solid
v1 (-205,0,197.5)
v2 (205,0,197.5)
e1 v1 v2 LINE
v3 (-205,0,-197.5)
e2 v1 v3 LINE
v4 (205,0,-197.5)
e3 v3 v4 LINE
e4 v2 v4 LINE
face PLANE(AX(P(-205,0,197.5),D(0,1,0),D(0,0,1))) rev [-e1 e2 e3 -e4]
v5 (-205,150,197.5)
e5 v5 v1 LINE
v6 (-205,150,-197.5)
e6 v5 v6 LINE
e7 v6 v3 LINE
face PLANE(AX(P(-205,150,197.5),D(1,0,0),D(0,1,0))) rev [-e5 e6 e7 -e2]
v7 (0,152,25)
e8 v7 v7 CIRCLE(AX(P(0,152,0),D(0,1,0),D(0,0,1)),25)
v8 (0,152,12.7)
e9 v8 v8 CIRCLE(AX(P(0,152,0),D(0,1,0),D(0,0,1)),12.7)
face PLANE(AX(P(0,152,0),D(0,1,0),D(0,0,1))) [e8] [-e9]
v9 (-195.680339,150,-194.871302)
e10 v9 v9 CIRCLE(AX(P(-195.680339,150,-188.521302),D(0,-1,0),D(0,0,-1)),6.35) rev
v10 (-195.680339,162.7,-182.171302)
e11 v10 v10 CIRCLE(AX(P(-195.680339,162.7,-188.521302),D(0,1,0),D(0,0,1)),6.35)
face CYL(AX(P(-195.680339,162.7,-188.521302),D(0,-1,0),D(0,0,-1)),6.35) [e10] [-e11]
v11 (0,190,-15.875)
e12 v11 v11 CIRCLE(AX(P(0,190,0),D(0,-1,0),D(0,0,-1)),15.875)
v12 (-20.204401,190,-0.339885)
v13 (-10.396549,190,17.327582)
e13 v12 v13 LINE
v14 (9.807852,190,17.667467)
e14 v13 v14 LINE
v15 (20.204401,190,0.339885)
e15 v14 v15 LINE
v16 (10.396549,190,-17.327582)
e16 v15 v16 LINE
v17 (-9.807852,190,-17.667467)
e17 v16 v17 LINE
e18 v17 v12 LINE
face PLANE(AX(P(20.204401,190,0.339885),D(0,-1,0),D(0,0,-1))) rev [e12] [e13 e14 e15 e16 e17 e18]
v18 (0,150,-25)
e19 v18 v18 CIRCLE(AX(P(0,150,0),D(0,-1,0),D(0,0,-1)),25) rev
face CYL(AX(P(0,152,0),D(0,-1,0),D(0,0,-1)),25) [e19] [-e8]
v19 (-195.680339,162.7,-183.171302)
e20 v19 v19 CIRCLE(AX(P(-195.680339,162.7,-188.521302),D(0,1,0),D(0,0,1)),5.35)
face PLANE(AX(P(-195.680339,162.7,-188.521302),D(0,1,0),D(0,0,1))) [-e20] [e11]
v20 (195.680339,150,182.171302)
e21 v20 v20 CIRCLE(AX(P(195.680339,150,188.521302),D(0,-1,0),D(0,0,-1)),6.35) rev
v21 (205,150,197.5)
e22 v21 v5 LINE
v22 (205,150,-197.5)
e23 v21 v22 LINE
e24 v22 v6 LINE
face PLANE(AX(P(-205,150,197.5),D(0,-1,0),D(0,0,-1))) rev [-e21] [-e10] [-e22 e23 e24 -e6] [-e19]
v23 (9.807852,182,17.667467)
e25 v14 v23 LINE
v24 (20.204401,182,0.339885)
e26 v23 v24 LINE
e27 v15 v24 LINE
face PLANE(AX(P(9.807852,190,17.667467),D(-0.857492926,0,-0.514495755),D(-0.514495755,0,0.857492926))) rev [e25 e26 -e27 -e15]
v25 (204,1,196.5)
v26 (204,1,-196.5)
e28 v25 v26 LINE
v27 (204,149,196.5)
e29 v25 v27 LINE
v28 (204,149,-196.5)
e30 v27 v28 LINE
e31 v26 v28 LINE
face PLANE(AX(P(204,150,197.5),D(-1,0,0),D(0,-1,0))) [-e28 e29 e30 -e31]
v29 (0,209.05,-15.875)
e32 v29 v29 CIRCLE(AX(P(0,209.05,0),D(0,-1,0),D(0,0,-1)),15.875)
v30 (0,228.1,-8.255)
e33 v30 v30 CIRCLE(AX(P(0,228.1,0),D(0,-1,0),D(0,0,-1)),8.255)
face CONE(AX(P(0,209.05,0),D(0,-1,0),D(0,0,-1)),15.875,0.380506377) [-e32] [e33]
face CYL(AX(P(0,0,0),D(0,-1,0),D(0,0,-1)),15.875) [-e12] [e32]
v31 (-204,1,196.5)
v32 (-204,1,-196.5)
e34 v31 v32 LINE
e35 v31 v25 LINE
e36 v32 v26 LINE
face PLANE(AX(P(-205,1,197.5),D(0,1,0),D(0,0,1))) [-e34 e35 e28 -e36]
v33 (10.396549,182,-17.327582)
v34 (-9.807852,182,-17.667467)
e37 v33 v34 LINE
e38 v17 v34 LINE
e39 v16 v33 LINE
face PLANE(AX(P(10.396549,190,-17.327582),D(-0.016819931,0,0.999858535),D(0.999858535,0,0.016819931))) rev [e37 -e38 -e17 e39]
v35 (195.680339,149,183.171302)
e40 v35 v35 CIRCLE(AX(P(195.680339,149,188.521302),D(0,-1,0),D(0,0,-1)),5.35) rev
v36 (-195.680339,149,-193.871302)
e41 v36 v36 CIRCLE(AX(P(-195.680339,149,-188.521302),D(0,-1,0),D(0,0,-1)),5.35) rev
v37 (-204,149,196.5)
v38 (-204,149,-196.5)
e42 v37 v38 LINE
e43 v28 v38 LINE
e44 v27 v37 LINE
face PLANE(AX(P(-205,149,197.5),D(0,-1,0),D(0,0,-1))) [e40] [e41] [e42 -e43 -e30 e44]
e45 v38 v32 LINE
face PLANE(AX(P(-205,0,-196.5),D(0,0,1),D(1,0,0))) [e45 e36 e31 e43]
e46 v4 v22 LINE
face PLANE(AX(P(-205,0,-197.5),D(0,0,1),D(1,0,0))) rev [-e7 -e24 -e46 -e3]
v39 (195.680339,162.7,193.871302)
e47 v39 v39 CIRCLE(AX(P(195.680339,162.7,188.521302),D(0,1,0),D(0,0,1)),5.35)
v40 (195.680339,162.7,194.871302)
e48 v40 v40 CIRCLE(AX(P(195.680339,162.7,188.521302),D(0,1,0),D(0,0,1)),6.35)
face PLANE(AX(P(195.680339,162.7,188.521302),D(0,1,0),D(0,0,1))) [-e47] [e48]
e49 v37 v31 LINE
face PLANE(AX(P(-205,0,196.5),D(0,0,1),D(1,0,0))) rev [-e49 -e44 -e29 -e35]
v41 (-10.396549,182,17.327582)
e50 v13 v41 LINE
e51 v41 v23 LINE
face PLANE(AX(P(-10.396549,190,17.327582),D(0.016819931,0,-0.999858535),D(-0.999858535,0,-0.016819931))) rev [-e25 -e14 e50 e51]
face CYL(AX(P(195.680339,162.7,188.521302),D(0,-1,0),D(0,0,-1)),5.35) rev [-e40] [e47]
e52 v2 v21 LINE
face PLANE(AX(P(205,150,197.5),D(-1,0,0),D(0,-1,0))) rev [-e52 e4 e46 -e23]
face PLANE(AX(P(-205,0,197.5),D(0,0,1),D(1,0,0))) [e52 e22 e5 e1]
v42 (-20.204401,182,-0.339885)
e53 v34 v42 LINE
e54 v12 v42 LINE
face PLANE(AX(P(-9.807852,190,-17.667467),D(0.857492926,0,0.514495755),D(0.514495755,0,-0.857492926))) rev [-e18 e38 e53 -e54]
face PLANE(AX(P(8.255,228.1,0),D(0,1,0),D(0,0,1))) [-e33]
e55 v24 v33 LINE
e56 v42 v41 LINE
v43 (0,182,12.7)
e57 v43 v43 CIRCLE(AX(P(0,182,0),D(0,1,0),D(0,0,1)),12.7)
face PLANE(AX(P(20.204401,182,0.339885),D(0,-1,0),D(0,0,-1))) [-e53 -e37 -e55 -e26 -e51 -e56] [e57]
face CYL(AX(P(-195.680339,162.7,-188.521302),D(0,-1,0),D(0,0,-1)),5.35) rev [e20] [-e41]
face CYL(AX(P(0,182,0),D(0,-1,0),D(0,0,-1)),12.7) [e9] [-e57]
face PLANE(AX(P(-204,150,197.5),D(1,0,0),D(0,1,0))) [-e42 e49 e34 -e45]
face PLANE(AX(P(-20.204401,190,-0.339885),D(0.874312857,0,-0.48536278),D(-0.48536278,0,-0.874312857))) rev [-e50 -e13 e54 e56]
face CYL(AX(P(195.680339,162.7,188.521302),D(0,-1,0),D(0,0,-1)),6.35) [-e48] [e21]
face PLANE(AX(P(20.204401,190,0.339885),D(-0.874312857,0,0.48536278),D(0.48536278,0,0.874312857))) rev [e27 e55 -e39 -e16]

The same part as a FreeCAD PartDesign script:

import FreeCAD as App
import Part
import Sketcher

V = App.Vector
Q = App.Units.Quantity


def faces_at(feature, points):
    """Names of the faces that lie closest to the given points."""
    faces = feature.Shape.Faces
    near = lambda p: min(range(len(faces)), key=lambda i: faces[i].distToShape(Part.Vertex(*p))[0])
    return sorted({f"Face{near(p) + 1}" for p in points})

doc = App.newDocument("Part")
body = doc.addObject("PartDesign::Body", "Body")

# Sketch on XY plane
sketch1 = body.newObject("Sketcher::SketchObject", "Sketch")
sketch1.AttachmentSupport = (doc.getObject("XY_Plane"), [""])
sketch1.MapMode = "FlatFace"
sketch1.addGeometry(Part.LineSegment(V(-205, 150, 0), V(-205, 0, 0)), False)
sketch1.addGeometry(Part.LineSegment(V(-205, 0, 0), V(205, 0, 0)), False)
sketch1.addGeometry(Part.LineSegment(V(205, 0, 0), V(205, 150, 0)), False)
sketch1.addGeometry(Part.LineSegment(V(205, 150, 0), V(-205, 150, 0)), False)
sketch1.addConstraint(Sketcher.Constraint("Coincident", 0, 2, 1, 1))
sketch1.addConstraint(Sketcher.Constraint("Coincident", 1, 2, 2, 1))
sketch1.addConstraint(Sketcher.Constraint("Coincident", 2, 2, 3, 1))
sketch1.addConstraint(Sketcher.Constraint("Coincident", 3, 2, 0, 1))
sketch1.addConstraint(Sketcher.Constraint("Vertical", 0))
sketch1.addConstraint(Sketcher.Constraint("Horizontal", 1))
sketch1.addConstraint(Sketcher.Constraint("Vertical", 2))
sketch1.addConstraint(Sketcher.Constraint("Horizontal", 3))
sketch1.addConstraint(Sketcher.Constraint("Symmetric", 0, 2, 1, 2, -1, 1))
sketch1.addConstraint(Sketcher.Constraint("DistanceX", 1, 1, 1, 2, Q("410 mm")))
sketch1.addConstraint(Sketcher.Constraint("DistanceY", 0, 2, 0, 1, Q("150 mm")))
pad1 = body.newObject("PartDesign::Pad", "Pad")
pad1.Profile = sketch1
pad1.Length = 395
pad1.Midplane = True

# Sketch on XZ plane
sketch2 = body.newObject("Sketcher::SketchObject", "Sketch001")
sketch2.AttachmentSupport = (doc.getObject("XZ_Plane"), [""])
sketch2.MapMode = "FlatFace"
sketch2.AttachmentOffset = App.Placement(V(0, 0, -150), App.Rotation())
sketch2.addGeometry(Part.Circle(V(-196, -189, 0), V(0, 0, 1), 6), False)
sketch2.addGeometry(Part.Circle(V(196, 189, 0), V(0, 0, 1), 6), False)
sketch2.addConstraint(Sketcher.Constraint("Equal", 0, 1))
sketch2.addConstraint(Sketcher.Constraint("Symmetric", 0, 3, 1, 3, -1, 1))
sketch2.addConstraint(Sketcher.Constraint("Diameter", 0, Q("12.7 mm")))
sketch2.addConstraint(Sketcher.Constraint("DistanceX", 0, 3, -1, 1, Q("195.680339 mm")))
sketch2.addConstraint(Sketcher.Constraint("DistanceY", 0, 3, -1, 1, Q("188.521302 mm")))
pad2 = body.newObject("PartDesign::Pad", "Pad001")
pad2.Profile = sketch2
pad2.Length = 12.7
pad2.Reversed = True
doc.recompute()

thickness = body.newObject("PartDesign::Thickness", "Thickness")
thickness.Base = (pad2, faces_at(pad2, [(-195.68, 162.7, -188.521), (195.68, 162.7, 188.521)]))
thickness.Value = 1
thickness.Reversed = True
thickness.Join = "Intersection"

# Sketch on XZ plane
sketch3 = body.newObject("Sketcher::SketchObject", "Sketch002")
sketch3.AttachmentSupport = (doc.getObject("XZ_Plane"), [""])
sketch3.MapMode = "FlatFace"
sketch3.AttachmentOffset = App.Placement(V(0, 0, -150), App.Rotation())
sketch3.addGeometry(Part.Circle(V(0, 0, 0), V(0, 0, 1), 25), False)
sketch3.addConstraint(Sketcher.Constraint("Coincident", 0, 3, -1, 1))
sketch3.addConstraint(Sketcher.Constraint("Diameter", 0, Q("50 mm")))
pad3 = body.newObject("PartDesign::Pad", "Pad002")
pad3.Profile = sketch3
pad3.Length = 2
pad3.Reversed = True

# Sketch on XZ plane
sketch4 = body.newObject("Sketcher::SketchObject", "Sketch003")
sketch4.AttachmentSupport = (doc.getObject("XZ_Plane"), [""])
sketch4.MapMode = "FlatFace"
sketch4.AttachmentOffset = App.Placement(V(0, 0, -152), App.Rotation())
sketch4.addGeometry(Part.Circle(V(0, 0, 0), V(0, 0, 1), 13), False)
sketch4.addConstraint(Sketcher.Constraint("Coincident", 0, 3, -1, 1))
sketch4.addConstraint(Sketcher.Constraint("Diameter", 0, Q("25.4 mm")))
pad4 = body.newObject("PartDesign::Pad", "Pad003")
pad4.Profile = sketch4
pad4.Length = 30
pad4.Reversed = True

# Sketch on XZ plane
sketch5 = body.newObject("Sketcher::SketchObject", "Sketch004")
sketch5.AttachmentSupport = (doc.getObject("XZ_Plane"), [""])
sketch5.MapMode = "FlatFace"
sketch5.AttachmentOffset = App.Placement(V(0, 0, -182), App.Rotation())
sketch5.addGeometry(Part.LineSegment(V(10, -17, 0), V(-10, -18, 0)), False)
sketch5.addGeometry(Part.LineSegment(V(-10, -18, 0), V(-20, 0, 0)), False)
sketch5.addGeometry(Part.LineSegment(V(-20, 0, 0), V(-10, 17, 0)), False)
sketch5.addGeometry(Part.LineSegment(V(-10, 17, 0), V(10, 18, 0)), False)
sketch5.addGeometry(Part.LineSegment(V(10, 18, 0), V(20, 0, 0)), False)
sketch5.addGeometry(Part.LineSegment(V(20, 0, 0), V(10, -17, 0)), False)
sketch5.addConstraint(Sketcher.Constraint("Coincident", 0, 2, 1, 1))
sketch5.addConstraint(Sketcher.Constraint("Coincident", 1, 2, 2, 1))
sketch5.addConstraint(Sketcher.Constraint("Coincident", 2, 2, 3, 1))
sketch5.addConstraint(Sketcher.Constraint("Coincident", 3, 2, 4, 1))
sketch5.addConstraint(Sketcher.Constraint("Coincident", 4, 2, 5, 1))
sketch5.addConstraint(Sketcher.Constraint("Coincident", 5, 2, 0, 1))
sketch5.addConstraint(Sketcher.Constraint("Symmetric", 0, 2, 3, 2, -1, 1))
sketch5.addConstraint(Sketcher.Constraint("Symmetric", 1, 2, 4, 2, -1, 1))
sketch5.addConstraint(Sketcher.Constraint("Symmetric", 2, 2, 5, 2, -1, 1))
sketch5.addConstraint(Sketcher.Constraint("Equal", 0, 1))
sketch5.addConstraint(Sketcher.Constraint("Equal", 1, 2))
sketch5.addConstraint(Sketcher.Constraint("DistanceX", 1, 2, -1, 1, Q("20.204401 mm")))
sketch5.addConstraint(Sketcher.Constraint("DistanceX", 2, 2, 3, 2, Q("20.204401 mm")))
sketch5.addConstraint(Sketcher.Constraint("DistanceX", 2, 2, 5, 2, Q("20.793098 mm")))
sketch5.addConstraint(Sketcher.Constraint("Distance", 0, Q("20.207259 mm")))
pad5 = body.newObject("PartDesign::Pad", "Pad004")
pad5.Profile = sketch5
pad5.Length = 8
pad5.Reversed = True

# Sketch on XY plane
sketch6 = body.newObject("Sketcher::SketchObject", "Sketch005")
sketch6.AttachmentSupport = (doc.getObject("XY_Plane"), [""])
sketch6.MapMode = "FlatFace"
sketch6.addGeometry(Part.LineSegment(V(0, 190, 0), V(16, 190, 0)), False)
sketch6.addGeometry(Part.LineSegment(V(16, 190, 0), V(16, 209, 0)), False)
sketch6.addGeometry(Part.LineSegment(V(16, 209, 0), V(8, 228, 0)), False)
sketch6.addGeometry(Part.LineSegment(V(8, 228, 0), V(0, 228, 0)), False)
sketch6.addGeometry(Part.LineSegment(V(0, 228, 0), V(0, 190, 0)), False)
sketch6.addConstraint(Sketcher.Constraint("Coincident", 0, 2, 1, 1))
sketch6.addConstraint(Sketcher.Constraint("Coincident", 1, 2, 2, 1))
sketch6.addConstraint(Sketcher.Constraint("Coincident", 2, 2, 3, 1))
sketch6.addConstraint(Sketcher.Constraint("Coincident", 3, 2, 4, 1))
sketch6.addConstraint(Sketcher.Constraint("Coincident", 4, 2, 0, 1))
sketch6.addConstraint(Sketcher.Constraint("Horizontal", 0))
sketch6.addConstraint(Sketcher.Constraint("Vertical", 1))
sketch6.addConstraint(Sketcher.Constraint("Horizontal", 3))
sketch6.addConstraint(Sketcher.Constraint("Vertical", 4))
sketch6.addConstraint(Sketcher.Constraint("PointOnObject", 3, 2, -2))
sketch6.addConstraint(Sketcher.Constraint("DistanceY", 4, 2, 4, 1, Q("38.1 mm")))
sketch6.addConstraint(Sketcher.Constraint("DistanceY", -1, 1, 0, 2, Q("190 mm")))
sketch6.addConstraint(Sketcher.Constraint("DistanceY", 1, 1, 1, 2, Q("19.05 mm")))
sketch6.addConstraint(Sketcher.Constraint("DistanceX", 0, 1, 0, 2, Q("15.875 mm")))
sketch6.addConstraint(Sketcher.Constraint("DistanceX", 3, 2, 3, 1, Q("8.255 mm")))
revolution = body.newObject("PartDesign::Revolution", "Revolution")
revolution.Profile = sketch6
revolution.ReferenceAxis = (sketch6, ["V_Axis"])
revolution.Angle = 360

doc.recompute()
